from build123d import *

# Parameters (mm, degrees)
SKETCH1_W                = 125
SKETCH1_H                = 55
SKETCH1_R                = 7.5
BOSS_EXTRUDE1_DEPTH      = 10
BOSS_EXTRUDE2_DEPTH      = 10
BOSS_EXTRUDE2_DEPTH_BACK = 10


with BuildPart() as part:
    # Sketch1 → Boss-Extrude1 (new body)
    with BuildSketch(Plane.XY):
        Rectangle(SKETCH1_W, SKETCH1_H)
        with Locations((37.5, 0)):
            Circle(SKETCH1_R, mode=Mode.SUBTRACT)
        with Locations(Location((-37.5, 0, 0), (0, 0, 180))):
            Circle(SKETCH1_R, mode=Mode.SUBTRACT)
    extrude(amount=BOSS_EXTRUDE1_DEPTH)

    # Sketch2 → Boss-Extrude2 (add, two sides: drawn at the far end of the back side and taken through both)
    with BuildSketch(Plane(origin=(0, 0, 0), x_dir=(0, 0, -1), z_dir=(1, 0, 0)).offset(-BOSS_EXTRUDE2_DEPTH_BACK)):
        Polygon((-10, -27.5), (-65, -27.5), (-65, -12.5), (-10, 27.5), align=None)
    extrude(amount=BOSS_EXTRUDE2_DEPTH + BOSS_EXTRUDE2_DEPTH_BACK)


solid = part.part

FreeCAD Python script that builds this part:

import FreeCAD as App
import Part
import Sketcher
from FreeCAD import Vector
Q = App.Units.Quantity

doc = App.newDocument("Part")
body = doc.addObject("PartDesign::Body", "Body")

# Sketch on XY plane
sketch1 = body.newObject("Sketcher::SketchObject", "Sketch")
sketch1.AttachmentSupport = (doc.getObject("XY_Plane"), [""])
sketch1.MapMode = "FlatFace"
sketch1.addGeometry(Part.LineSegment(Vector(-62, 28, 0), Vector(-62, -28, 0)), False)
sketch1.addGeometry(Part.LineSegment(Vector(-62, -28, 0), Vector(62, -28, 0)), False)
sketch1.addGeometry(Part.LineSegment(Vector(62, -28, 0), Vector(62, 28, 0)), False)
sketch1.addGeometry(Part.LineSegment(Vector(62, 28, 0), Vector(-62, 28, 0)), False)
sketch1.addGeometry(Part.Circle(Vector(-38, 0, 0), Vector(0, 0, 1), 8), False)
sketch1.addGeometry(Part.Circle(Vector(38, 0, 0), Vector(0, 0, 1), 8), False)
sketch1.addConstraint(Sketcher.Constraint("Coincident", 0, 2, 1, 1))
sketch1.addConstraint(Sketcher.Constraint("Coincident", 1, 2, 2, 1))
sketch1.addConstraint(Sketcher.Constraint("Coincident", 2, 2, 3, 1))
sketch1.addConstraint(Sketcher.Constraint("Coincident", 3, 2, 0, 1))
sketch1.addConstraint(Sketcher.Constraint("Vertical", 0))
sketch1.addConstraint(Sketcher.Constraint("Horizontal", 1))
sketch1.addConstraint(Sketcher.Constraint("Vertical", 2))
sketch1.addConstraint(Sketcher.Constraint("Horizontal", 3))
sketch1.addConstraint(Sketcher.Constraint("Equal", 4, 5))
sketch1.addConstraint(Sketcher.Constraint("Symmetric", 4, 3, 5, 3, -1, 1))
sketch1.addConstraint(Sketcher.Constraint("Symmetric", 0, 2, 2, 2, -1, 1))
sketch1.addConstraint(Sketcher.Constraint("PointOnObject", 4, 3, -1))
sketch1.addConstraint(Sketcher.Constraint("Diameter", 4, Q("15 mm")))
sketch1.addConstraint(Sketcher.Constraint("DistanceX", 1, 1, 1, 2, Q("125 mm")))
sketch1.addConstraint(Sketcher.Constraint("DistanceY", 0, 2, 0, 1, Q("55 mm")))
sketch1.addConstraint(Sketcher.Constraint("DistanceX", 4, 3, 5, 3, Q("75 mm")))
pad1 = body.newObject("PartDesign::Pad", "Pad")
pad1.Profile = sketch1
pad1.Length = 10

# Sketch on YZ plane
sketch2 = body.newObject("Sketcher::SketchObject", "Sketch001")
sketch2.AttachmentSupport = (doc.getObject("YZ_Plane"), [""])
sketch2.MapMode = "FlatFace"
sketch2.addGeometry(Part.LineSegment(Vector(-28, 65, 0), Vector(-28, 10, 0)), False)
sketch2.addGeometry(Part.LineSegment(Vector(-28, 10, 0), Vector(28, 10, 0)), False)
sketch2.addGeometry(Part.LineSegment(Vector(28, 10, 0), Vector(-12, 65, 0)), False)
sketch2.addGeometry(Part.LineSegment(Vector(-12, 65, 0), Vector(-28, 65, 0)), False)
sketch2.addConstraint(Sketcher.Constraint("Coincident", 0, 2, 1, 1))
sketch2.addConstraint(Sketcher.Constraint("Coincident", 1, 2, 2, 1))
sketch2.addConstraint(Sketcher.Constraint("Coincident", 2, 2, 3, 1))
sketch2.addConstraint(Sketcher.Constraint("Coincident", 3, 2, 0, 1))
sketch2.addConstraint(Sketcher.Constraint("Vertical", 0))
sketch2.addConstraint(Sketcher.Constraint("Horizontal", 1))
sketch2.addConstraint(Sketcher.Constraint("Horizontal", 3))
sketch2.addConstraint(Sketcher.Constraint("Equal", 1, 0))
sketch2.addConstraint(Sketcher.Constraint("DistanceX", 1, 1, 1, 2, Q("55 mm")))
sketch2.addConstraint(Sketcher.Constraint("DistanceX", 3, 2, 3, 1, Q("15 mm")))
sketch2.addConstraint(Sketcher.Constraint("DistanceY", -1, 1, 0, 2, Q("10 mm")))
sketch2.addConstraint(Sketcher.Constraint("DistanceX", 0, 2, -1, 1, Q("27.5 mm")))
pad2 = body.newObject("PartDesign::Pad", "Pad001")
pad2.Profile = sketch2
pad2.Type = "TwoLengths"
pad2.Length = 10
pad2.Length2 = 10

doc.recompute()
